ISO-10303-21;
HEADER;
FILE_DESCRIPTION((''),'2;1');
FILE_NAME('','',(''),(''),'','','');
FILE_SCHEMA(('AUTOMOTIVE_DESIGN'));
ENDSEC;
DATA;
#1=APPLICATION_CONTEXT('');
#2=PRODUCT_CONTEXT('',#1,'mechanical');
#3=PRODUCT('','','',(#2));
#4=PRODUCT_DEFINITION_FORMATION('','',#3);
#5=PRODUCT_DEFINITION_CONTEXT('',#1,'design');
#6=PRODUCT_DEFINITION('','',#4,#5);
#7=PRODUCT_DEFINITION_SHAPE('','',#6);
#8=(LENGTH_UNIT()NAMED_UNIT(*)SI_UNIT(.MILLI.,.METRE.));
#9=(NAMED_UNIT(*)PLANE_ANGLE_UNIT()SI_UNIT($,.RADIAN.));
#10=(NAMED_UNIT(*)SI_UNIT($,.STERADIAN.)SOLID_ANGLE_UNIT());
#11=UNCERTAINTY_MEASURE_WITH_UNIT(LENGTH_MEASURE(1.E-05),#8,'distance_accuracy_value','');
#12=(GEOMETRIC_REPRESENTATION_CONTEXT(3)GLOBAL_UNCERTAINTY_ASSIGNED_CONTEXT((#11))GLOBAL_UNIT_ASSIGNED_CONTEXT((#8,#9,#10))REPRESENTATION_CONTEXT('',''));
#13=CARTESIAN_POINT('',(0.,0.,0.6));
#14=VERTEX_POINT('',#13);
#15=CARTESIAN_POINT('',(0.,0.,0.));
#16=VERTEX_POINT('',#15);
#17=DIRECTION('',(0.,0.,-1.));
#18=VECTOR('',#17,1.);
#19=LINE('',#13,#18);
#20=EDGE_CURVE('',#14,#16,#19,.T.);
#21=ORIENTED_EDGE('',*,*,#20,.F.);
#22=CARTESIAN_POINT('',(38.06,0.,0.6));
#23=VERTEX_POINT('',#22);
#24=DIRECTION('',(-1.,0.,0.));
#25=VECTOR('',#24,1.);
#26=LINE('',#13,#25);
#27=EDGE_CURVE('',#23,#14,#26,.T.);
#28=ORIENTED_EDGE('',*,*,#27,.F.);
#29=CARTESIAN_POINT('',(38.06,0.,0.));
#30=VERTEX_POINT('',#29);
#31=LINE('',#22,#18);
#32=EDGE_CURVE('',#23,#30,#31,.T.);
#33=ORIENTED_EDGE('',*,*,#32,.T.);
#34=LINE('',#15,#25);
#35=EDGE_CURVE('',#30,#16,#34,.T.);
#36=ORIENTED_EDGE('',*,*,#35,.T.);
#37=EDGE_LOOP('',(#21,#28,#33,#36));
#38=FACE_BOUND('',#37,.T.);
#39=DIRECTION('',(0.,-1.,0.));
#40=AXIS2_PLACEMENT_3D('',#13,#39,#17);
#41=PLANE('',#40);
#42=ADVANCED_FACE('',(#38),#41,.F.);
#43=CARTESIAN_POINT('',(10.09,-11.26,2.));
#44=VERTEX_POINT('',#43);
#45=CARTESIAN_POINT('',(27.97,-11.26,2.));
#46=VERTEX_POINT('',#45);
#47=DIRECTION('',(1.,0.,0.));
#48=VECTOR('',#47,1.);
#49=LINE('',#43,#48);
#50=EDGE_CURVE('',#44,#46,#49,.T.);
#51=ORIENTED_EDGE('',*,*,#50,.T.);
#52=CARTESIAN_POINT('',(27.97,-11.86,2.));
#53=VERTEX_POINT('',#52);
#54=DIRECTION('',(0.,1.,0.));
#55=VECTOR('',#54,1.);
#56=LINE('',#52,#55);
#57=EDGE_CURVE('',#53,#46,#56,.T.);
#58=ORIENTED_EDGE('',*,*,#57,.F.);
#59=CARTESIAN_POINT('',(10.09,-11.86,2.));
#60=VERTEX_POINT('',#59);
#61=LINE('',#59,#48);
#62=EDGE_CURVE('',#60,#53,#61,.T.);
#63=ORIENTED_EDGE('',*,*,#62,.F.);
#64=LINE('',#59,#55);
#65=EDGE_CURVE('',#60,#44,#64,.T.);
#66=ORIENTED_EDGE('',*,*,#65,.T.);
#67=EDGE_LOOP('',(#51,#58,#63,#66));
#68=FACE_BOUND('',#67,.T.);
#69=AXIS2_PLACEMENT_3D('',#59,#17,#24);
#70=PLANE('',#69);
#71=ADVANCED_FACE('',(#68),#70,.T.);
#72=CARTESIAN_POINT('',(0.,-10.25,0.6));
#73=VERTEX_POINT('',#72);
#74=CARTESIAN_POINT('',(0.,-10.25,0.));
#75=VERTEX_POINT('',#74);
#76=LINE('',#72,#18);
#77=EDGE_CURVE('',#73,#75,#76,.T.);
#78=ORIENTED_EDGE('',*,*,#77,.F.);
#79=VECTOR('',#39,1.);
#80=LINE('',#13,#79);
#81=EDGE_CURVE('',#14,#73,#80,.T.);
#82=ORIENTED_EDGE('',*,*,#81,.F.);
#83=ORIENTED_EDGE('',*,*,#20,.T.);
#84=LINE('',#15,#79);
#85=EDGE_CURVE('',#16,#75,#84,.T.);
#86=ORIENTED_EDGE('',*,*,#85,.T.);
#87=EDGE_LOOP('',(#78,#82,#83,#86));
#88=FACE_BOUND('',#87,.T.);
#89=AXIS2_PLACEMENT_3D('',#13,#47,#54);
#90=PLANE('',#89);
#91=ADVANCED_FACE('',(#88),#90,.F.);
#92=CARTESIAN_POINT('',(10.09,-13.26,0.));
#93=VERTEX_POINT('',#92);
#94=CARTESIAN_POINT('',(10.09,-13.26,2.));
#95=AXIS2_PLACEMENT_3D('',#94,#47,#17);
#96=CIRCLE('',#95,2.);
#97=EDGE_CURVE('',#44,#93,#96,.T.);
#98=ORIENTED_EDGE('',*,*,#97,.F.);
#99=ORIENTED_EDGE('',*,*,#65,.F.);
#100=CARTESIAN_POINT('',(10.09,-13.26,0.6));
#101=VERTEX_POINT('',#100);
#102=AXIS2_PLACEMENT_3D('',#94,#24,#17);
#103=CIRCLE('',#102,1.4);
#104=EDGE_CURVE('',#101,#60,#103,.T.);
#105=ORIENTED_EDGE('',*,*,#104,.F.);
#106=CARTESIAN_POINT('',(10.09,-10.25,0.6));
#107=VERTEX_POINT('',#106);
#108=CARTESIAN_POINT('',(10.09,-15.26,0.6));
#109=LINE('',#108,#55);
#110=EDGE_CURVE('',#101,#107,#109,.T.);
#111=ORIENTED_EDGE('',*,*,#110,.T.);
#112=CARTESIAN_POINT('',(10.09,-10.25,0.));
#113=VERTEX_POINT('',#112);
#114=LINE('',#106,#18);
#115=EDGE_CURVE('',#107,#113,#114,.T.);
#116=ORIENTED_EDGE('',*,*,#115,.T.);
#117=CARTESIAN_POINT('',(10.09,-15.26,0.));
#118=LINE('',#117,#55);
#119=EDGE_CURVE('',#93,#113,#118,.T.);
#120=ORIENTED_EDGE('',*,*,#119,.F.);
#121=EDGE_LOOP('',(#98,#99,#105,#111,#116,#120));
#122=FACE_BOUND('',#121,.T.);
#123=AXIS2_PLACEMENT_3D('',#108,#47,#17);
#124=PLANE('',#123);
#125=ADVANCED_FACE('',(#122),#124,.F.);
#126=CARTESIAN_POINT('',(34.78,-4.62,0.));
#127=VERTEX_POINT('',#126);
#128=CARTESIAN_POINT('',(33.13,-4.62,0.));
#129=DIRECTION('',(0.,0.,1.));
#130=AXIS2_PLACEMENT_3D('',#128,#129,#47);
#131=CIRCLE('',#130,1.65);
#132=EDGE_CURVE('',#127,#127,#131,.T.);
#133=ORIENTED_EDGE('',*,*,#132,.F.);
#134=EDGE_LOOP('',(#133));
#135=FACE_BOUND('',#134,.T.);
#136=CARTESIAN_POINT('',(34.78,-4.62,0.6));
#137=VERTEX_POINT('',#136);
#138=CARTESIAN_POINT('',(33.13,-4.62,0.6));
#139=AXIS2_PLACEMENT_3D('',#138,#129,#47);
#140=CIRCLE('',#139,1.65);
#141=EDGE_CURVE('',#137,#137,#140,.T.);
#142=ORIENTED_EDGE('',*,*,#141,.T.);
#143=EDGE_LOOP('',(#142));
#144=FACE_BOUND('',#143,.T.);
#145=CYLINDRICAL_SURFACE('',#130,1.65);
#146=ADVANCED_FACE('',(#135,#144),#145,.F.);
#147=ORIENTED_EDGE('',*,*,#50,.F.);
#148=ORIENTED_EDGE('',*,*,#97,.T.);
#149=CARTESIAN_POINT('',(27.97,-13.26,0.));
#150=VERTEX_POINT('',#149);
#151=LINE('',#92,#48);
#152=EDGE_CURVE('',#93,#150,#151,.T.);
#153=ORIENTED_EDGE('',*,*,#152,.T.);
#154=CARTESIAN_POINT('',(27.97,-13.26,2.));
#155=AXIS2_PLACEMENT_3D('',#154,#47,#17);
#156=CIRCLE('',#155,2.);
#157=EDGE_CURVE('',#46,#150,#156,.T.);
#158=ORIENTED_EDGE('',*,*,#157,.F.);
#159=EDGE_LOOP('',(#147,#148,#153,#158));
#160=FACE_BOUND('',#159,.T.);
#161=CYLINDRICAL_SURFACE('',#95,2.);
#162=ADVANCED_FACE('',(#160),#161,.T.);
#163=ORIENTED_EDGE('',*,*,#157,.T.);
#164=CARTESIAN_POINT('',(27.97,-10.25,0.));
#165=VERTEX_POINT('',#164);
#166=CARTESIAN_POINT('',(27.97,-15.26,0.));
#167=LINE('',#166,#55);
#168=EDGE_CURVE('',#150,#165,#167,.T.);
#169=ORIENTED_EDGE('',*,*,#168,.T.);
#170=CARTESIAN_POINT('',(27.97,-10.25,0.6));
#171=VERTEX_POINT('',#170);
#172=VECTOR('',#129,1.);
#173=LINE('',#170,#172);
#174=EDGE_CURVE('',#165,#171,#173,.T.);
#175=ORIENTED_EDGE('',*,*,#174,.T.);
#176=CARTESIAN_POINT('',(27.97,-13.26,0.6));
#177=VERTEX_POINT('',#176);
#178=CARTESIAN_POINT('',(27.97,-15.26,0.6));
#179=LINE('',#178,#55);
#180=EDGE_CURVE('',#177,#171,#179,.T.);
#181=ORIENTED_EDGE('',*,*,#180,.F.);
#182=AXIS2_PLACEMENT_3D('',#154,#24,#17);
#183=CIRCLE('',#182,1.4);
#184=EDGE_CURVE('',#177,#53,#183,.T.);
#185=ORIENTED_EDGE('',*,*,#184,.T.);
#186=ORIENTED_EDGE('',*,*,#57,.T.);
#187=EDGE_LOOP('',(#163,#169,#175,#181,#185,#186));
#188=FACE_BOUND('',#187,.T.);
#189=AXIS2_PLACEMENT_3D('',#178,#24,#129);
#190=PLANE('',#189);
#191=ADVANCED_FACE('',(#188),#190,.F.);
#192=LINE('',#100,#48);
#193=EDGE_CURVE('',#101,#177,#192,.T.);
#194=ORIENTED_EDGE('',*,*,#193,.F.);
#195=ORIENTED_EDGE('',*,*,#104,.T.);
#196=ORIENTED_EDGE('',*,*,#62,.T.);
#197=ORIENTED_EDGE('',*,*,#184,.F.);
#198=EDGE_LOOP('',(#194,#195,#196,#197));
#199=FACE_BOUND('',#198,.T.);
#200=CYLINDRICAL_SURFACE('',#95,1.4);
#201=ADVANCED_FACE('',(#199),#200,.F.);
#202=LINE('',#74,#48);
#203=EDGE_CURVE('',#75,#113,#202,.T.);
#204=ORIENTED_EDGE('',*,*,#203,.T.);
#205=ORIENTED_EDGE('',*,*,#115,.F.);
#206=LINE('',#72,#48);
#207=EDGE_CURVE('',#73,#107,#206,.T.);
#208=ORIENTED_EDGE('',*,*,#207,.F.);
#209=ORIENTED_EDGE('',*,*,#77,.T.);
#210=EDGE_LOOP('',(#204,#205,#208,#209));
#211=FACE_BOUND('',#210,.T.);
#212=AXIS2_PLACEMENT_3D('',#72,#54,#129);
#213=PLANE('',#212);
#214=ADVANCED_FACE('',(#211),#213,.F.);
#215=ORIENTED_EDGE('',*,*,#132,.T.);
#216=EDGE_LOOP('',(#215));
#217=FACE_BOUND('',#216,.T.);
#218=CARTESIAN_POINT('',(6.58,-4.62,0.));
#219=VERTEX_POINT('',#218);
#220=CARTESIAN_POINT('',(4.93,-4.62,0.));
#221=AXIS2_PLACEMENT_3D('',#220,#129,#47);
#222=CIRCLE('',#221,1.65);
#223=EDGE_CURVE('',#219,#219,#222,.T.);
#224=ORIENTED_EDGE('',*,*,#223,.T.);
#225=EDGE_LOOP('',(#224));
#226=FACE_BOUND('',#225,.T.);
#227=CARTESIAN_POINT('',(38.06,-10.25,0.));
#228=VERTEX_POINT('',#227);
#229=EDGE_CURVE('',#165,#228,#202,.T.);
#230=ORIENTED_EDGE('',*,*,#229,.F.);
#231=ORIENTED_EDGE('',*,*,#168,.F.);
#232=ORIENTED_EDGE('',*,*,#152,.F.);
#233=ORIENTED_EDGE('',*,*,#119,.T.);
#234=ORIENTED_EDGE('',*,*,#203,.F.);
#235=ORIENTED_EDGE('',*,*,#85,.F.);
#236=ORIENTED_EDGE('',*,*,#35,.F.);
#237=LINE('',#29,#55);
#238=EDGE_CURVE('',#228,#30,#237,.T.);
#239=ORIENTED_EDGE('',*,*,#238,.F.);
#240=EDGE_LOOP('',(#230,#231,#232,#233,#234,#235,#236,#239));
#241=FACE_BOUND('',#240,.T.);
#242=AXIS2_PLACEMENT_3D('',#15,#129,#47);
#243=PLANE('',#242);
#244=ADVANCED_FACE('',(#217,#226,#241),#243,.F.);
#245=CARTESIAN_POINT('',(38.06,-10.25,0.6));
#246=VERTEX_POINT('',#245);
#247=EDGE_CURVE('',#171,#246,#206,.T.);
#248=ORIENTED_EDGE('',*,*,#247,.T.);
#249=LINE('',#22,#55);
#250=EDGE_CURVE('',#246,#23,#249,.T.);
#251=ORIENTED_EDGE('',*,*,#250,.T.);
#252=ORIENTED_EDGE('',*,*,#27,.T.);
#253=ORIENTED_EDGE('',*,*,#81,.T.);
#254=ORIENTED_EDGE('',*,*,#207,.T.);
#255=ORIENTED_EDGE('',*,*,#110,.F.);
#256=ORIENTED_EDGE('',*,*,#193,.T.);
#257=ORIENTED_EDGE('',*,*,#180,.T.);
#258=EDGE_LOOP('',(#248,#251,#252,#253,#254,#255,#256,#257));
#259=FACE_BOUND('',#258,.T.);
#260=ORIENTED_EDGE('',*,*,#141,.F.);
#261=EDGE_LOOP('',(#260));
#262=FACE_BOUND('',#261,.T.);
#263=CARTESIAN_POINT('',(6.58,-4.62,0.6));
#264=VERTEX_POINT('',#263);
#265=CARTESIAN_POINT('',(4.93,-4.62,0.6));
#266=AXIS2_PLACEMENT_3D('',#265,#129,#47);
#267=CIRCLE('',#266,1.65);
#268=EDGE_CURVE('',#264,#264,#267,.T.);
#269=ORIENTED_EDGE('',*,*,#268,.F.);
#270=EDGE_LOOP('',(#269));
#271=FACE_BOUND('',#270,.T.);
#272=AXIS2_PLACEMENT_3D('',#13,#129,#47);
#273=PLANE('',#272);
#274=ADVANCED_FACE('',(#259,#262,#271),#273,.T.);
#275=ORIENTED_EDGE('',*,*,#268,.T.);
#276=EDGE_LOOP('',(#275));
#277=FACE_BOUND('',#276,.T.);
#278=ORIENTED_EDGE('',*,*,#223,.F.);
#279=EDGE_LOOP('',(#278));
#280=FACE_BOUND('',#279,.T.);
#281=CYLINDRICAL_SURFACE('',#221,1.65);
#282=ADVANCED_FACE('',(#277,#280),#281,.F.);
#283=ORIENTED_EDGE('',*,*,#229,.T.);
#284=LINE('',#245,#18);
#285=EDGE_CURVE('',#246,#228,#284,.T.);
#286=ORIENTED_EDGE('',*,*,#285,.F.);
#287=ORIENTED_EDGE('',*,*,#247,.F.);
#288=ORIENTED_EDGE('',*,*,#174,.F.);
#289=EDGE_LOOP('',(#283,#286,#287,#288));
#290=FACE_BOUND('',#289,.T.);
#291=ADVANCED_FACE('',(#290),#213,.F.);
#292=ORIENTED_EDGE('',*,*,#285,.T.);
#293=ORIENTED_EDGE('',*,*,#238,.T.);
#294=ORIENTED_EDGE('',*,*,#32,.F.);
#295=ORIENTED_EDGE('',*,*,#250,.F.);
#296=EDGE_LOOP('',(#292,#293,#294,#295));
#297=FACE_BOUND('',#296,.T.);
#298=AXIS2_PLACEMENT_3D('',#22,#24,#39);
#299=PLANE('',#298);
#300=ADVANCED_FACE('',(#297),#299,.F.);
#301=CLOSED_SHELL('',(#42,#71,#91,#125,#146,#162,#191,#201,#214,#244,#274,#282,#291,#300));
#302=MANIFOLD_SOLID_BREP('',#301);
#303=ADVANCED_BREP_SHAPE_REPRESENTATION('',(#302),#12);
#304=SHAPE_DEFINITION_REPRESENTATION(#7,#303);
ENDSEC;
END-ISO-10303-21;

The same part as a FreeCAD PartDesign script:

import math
import FreeCAD as App
import Part
import Sketcher

V = App.Vector
Q = App.Units.Quantity

doc = App.newDocument("Part")
body = doc.addObject("PartDesign::Body", "Body")

sketch1 = doc.addObject("Sketcher::SketchObject", "Sketch")
body.addObject(sketch1)
sketch1.AttachmentSupport = (doc.XY_Plane, [""])
sketch1.MapMode = "FlatFace"
sketch1.addGeometry(Part.LineSegment(V(0, 0, 0), V(0, -10, 0)), False)
sketch1.addGeometry(Part.LineSegment(V(0, -10, 0), V(38, -10, 0)), False)
sketch1.addGeometry(Part.LineSegment(V(38, -10, 0), V(38, 0, 0)), False)
sketch1.addGeometry(Part.LineSegment(V(38, 0, 0), V(0, 0, 0)), False)
sketch1.addConstraint(Sketcher.Constraint("Coincident", 0, 2, 1, 1))
sketch1.addConstraint(Sketcher.Constraint("Coincident", 1, 2, 2, 1))
sketch1.addConstraint(Sketcher.Constraint("Coincident", 2, 2, 3, 1))
sketch1.addConstraint(Sketcher.Constraint("Coincident", 3, 2, 0, 1))
sketch1.addConstraint(Sketcher.Constraint("Vertical", 0))
sketch1.addConstraint(Sketcher.Constraint("Horizontal", 1))
sketch1.addConstraint(Sketcher.Constraint("Vertical", 2))
sketch1.addConstraint(Sketcher.Constraint("Horizontal", 3))
sketch1.addConstraint(Sketcher.Constraint("Coincident", 3, 2, -1, 1))
sketch1.addConstraint(Sketcher.Constraint("DistanceX", 1, 1, 1, 2, Q("38.06 mm")))
sketch1.addConstraint(Sketcher.Constraint("DistanceY", 0, 2, 0, 1, Q("10.25 mm")))
pad1 = doc.addObject("PartDesign::Pad", "Pad")
body.addObject(pad1)
pad1.Profile = sketch1
pad1.Length = 0.6

sketch2 = doc.addObject("Sketcher::SketchObject", "Sketch001")
body.addObject(sketch2)
sketch2.AttachmentSupport = (doc.XY_Plane, [""])
sketch2.MapMode = "FlatFace"
sketch2.AttachmentOffset = App.Placement(V(0, 0, 0.6), App.Rotation())
sketch2.addGeometry(Part.Circle(V(4.9, -4.6, 0), V(0, 0, 1), 1.6), False)
sketch2.addGeometry(Part.Circle(V(33.1, -4.6, 0), V(0, 0, 1), 1.6), False)
sketch2.addConstraint(Sketcher.Constraint("Equal", 0, 1))
sketch2.addConstraint(Sketcher.Constraint("Horizontal", 0, 3, 1, 3))
sketch2.addConstraint(Sketcher.Constraint("Diameter", 0, Q("3.3 mm")))
sketch2.addConstraint(Sketcher.Constraint("DistanceX", 0, 3, 1, 3, Q("28.2 mm")))
sketch2.addConstraint(Sketcher.Constraint("DistanceX", -1, 1, 0, 3, Q("4.93 mm")))
sketch2.addConstraint(Sketcher.Constraint("DistanceY", 0, 3, -1, 1, Q("4.62 mm")))
pocket1 = doc.addObject("PartDesign::Pocket", "Pocket")
body.addObject(pocket1)
pocket1.Profile = sketch2
pocket1.Length = 0.6

sketch3 = doc.addObject("Sketcher::SketchObject", "Sketch002")
body.addObject(sketch3)
sketch3.AttachmentSupport = (doc.XZ_Plane, [""])
sketch3.MapMode = "FlatFace"
sketch3.AttachmentOffset = App.Placement(V(0, 0, 10.25), App.Rotation())
sketch3.addGeometry(Part.LineSegment(V(10.1, 0.6, 0), V(10.1, 0, 0)), False)
sketch3.addGeometry(Part.LineSegment(V(10.1, 0, 0), V(28, 0, 0)), False)
sketch3.addGeometry(Part.LineSegment(V(28, 0, 0), V(28, 0.6, 0)), False)
sketch3.addGeometry(Part.LineSegment(V(28, 0.6, 0), V(10.1, 0.6, 0)), False)
sketch3.addConstraint(Sketcher.Constraint("Coincident", 0, 2, 1, 1))
sketch3.addConstraint(Sketcher.Constraint("Coincident", 1, 2, 2, 1))
sketch3.addConstraint(Sketcher.Constraint("Coincident", 2, 2, 3, 1))
sketch3.addConstraint(Sketcher.Constraint("Coincident", 3, 2, 0, 1))
sketch3.addConstraint(Sketcher.Constraint("Vertical", 0))
sketch3.addConstraint(Sketcher.Constraint("Horizontal", 1))
sketch3.addConstraint(Sketcher.Constraint("Vertical", 2))
sketch3.addConstraint(Sketcher.Constraint("Horizontal", 3))
sketch3.addConstraint(Sketcher.Constraint("PointOnObject", 0, 2, -1))
sketch3.addConstraint(Sketcher.Constraint("DistanceY", 0, 2, 0, 1, Q("0.6 mm")))
sketch3.addConstraint(Sketcher.Constraint("DistanceX", 1, 1, 1, 2, Q("17.88 mm")))
sketch3.addConstraint(Sketcher.Constraint("DistanceX", -1, 1, 0, 2, Q("10.09 mm")))
pad2 = doc.addObject("PartDesign::Pad", "Pad001")
body.addObject(pad2)
pad2.Profile = sketch3
pad2.Length = 5.01

sketch4 = doc.addObject("Sketcher::SketchObject", "Sketch003")
body.addObject(sketch4)
sketch4.AttachmentSupport = (doc.YZ_Plane, [""])
sketch4.MapMode = "FlatFace"
sketch4.AttachmentOffset = App.Placement(V(0, 0, 27.97), App.Rotation())
sketch4.addGeometry(Part.LineSegment(V(-11.9, 2, 0), V(-11.3, 2, 0)), False)
sketch4.addGeometry(Part.ArcOfCircle(Part.Circle(V(-13.3, 2, 0), V(0, 0, 1), 2), math.radians(0), math.radians(270)), False)
sketch4.addGeometry(Part.LineSegment(V(-13.3, 0, 0), V(-13.3, 0.6, 0)), False)
sketch4.addGeometry(Part.ArcOfCircle(Part.Circle(V(-13.3, 2, 0), V(0, 0, 1), 1.4), math.radians(0), math.radians(270)), False)
sketch4.addConstraint(Sketcher.Constraint("Coincident", 0, 2, 1, 1))
sketch4.addConstraint(Sketcher.Constraint("Coincident", 1, 2, 2, 1))
sketch4.addConstraint(Sketcher.Constraint("Coincident", 2, 2, 3, 2))
sketch4.addConstraint(Sketcher.Constraint("Coincident", 3, 1, 0, 1))
sketch4.addConstraint(Sketcher.Constraint("Horizontal", 0))
sketch4.addConstraint(Sketcher.Constraint("Vertical", 2))
sketch4.addConstraint(Sketcher.Constraint("Coincident", 3, 3, 1, 3))
sketch4.addConstraint(Sketcher.Constraint("PointOnObject", 1, 2, -1))
sketch4.addConstraint(Sketcher.Constraint("Horizontal", 3, 3, 0, 2))
sketch4.addConstraint(Sketcher.Constraint("Vertical", 3, 3, 1, 2))
sketch4.addConstraint(Sketcher.Constraint("Radius", 1, Q("2 mm")))
sketch4.addConstraint(Sketcher.Constraint("Radius", 3, Q("1.4 mm")))
sketch4.addConstraint(Sketcher.Constraint("DistanceX", 1, 3, -1, 1, Q("13.26 mm")))
pad3 = doc.addObject("PartDesign::Pad", "Pad002")
body.addObject(pad3)
pad3.Profile = sketch4
pad3.Length = 17.88
pad3.Reversed = True

sketch5 = doc.addObject("Sketcher::SketchObject", "Sketch004")
body.addObject(sketch5)
sketch5.AttachmentSupport = (doc.YZ_Plane, [""])
sketch5.MapMode = "FlatFace"
sketch5.AttachmentOffset = App.Placement(V(0, 0, 27.97), App.Rotation())
sketch5.addGeometry(Part.ArcOfCircle(Part.Circle(V(-13.3, 2, 0), V(0, 0, 1), 2), math.radians(-136), math.radians(-90)), False)
sketch5.addGeometry(Part.LineSegment(V(-14.7, 0.6, 0), V(-15.3, 0.6, 0)), False)
sketch5.addGeometry(Part.LineSegment(V(-15.3, 0.6, 0), V(-15.3, 0, 0)), False)
sketch5.addGeometry(Part.LineSegment(V(-15.3, 0, 0), V(-13.3, 0, 0)), False)
sketch5.addConstraint(Sketcher.Constraint("Coincident", 0, 1, 1, 1))
sketch5.addConstraint(Sketcher.Constraint("Coincident", 1, 2, 2, 1))
sketch5.addConstraint(Sketcher.Constraint("Coincident", 2, 2, 3, 1))
sketch5.addConstraint(Sketcher.Constraint("Tangent", 3, 2, 0, 2))
sketch5.addConstraint(Sketcher.Constraint("Horizontal", 1))
sketch5.addConstraint(Sketcher.Constraint("Vertical", 2))
sketch5.addConstraint(Sketcher.Constraint("Horizontal", 3))
sketch5.addConstraint(Sketcher.Constraint("PointOnObject", 2, 2, -1))
sketch5.addConstraint(Sketcher.Constraint("Radius", 0, Q("2 mm")))
sketch5.addConstraint(Sketcher.Constraint("DistanceX", 3, 1, 3, 2, Q("2 mm")))
sketch5.addConstraint(Sketcher.Constraint("DistanceY", 2, 2, 2, 1, Q("0.6 mm")))
sketch5.addConstraint(Sketcher.Constraint("DistanceX", 0, 3, -1, 1, Q("13.26 mm")))
pocket2 = doc.addObject("PartDesign::Pocket", "Pocket001")
body.addObject(pocket2)
pocket2.Profile = sketch5
pocket2.Length = 17.88

doc.recompute()
